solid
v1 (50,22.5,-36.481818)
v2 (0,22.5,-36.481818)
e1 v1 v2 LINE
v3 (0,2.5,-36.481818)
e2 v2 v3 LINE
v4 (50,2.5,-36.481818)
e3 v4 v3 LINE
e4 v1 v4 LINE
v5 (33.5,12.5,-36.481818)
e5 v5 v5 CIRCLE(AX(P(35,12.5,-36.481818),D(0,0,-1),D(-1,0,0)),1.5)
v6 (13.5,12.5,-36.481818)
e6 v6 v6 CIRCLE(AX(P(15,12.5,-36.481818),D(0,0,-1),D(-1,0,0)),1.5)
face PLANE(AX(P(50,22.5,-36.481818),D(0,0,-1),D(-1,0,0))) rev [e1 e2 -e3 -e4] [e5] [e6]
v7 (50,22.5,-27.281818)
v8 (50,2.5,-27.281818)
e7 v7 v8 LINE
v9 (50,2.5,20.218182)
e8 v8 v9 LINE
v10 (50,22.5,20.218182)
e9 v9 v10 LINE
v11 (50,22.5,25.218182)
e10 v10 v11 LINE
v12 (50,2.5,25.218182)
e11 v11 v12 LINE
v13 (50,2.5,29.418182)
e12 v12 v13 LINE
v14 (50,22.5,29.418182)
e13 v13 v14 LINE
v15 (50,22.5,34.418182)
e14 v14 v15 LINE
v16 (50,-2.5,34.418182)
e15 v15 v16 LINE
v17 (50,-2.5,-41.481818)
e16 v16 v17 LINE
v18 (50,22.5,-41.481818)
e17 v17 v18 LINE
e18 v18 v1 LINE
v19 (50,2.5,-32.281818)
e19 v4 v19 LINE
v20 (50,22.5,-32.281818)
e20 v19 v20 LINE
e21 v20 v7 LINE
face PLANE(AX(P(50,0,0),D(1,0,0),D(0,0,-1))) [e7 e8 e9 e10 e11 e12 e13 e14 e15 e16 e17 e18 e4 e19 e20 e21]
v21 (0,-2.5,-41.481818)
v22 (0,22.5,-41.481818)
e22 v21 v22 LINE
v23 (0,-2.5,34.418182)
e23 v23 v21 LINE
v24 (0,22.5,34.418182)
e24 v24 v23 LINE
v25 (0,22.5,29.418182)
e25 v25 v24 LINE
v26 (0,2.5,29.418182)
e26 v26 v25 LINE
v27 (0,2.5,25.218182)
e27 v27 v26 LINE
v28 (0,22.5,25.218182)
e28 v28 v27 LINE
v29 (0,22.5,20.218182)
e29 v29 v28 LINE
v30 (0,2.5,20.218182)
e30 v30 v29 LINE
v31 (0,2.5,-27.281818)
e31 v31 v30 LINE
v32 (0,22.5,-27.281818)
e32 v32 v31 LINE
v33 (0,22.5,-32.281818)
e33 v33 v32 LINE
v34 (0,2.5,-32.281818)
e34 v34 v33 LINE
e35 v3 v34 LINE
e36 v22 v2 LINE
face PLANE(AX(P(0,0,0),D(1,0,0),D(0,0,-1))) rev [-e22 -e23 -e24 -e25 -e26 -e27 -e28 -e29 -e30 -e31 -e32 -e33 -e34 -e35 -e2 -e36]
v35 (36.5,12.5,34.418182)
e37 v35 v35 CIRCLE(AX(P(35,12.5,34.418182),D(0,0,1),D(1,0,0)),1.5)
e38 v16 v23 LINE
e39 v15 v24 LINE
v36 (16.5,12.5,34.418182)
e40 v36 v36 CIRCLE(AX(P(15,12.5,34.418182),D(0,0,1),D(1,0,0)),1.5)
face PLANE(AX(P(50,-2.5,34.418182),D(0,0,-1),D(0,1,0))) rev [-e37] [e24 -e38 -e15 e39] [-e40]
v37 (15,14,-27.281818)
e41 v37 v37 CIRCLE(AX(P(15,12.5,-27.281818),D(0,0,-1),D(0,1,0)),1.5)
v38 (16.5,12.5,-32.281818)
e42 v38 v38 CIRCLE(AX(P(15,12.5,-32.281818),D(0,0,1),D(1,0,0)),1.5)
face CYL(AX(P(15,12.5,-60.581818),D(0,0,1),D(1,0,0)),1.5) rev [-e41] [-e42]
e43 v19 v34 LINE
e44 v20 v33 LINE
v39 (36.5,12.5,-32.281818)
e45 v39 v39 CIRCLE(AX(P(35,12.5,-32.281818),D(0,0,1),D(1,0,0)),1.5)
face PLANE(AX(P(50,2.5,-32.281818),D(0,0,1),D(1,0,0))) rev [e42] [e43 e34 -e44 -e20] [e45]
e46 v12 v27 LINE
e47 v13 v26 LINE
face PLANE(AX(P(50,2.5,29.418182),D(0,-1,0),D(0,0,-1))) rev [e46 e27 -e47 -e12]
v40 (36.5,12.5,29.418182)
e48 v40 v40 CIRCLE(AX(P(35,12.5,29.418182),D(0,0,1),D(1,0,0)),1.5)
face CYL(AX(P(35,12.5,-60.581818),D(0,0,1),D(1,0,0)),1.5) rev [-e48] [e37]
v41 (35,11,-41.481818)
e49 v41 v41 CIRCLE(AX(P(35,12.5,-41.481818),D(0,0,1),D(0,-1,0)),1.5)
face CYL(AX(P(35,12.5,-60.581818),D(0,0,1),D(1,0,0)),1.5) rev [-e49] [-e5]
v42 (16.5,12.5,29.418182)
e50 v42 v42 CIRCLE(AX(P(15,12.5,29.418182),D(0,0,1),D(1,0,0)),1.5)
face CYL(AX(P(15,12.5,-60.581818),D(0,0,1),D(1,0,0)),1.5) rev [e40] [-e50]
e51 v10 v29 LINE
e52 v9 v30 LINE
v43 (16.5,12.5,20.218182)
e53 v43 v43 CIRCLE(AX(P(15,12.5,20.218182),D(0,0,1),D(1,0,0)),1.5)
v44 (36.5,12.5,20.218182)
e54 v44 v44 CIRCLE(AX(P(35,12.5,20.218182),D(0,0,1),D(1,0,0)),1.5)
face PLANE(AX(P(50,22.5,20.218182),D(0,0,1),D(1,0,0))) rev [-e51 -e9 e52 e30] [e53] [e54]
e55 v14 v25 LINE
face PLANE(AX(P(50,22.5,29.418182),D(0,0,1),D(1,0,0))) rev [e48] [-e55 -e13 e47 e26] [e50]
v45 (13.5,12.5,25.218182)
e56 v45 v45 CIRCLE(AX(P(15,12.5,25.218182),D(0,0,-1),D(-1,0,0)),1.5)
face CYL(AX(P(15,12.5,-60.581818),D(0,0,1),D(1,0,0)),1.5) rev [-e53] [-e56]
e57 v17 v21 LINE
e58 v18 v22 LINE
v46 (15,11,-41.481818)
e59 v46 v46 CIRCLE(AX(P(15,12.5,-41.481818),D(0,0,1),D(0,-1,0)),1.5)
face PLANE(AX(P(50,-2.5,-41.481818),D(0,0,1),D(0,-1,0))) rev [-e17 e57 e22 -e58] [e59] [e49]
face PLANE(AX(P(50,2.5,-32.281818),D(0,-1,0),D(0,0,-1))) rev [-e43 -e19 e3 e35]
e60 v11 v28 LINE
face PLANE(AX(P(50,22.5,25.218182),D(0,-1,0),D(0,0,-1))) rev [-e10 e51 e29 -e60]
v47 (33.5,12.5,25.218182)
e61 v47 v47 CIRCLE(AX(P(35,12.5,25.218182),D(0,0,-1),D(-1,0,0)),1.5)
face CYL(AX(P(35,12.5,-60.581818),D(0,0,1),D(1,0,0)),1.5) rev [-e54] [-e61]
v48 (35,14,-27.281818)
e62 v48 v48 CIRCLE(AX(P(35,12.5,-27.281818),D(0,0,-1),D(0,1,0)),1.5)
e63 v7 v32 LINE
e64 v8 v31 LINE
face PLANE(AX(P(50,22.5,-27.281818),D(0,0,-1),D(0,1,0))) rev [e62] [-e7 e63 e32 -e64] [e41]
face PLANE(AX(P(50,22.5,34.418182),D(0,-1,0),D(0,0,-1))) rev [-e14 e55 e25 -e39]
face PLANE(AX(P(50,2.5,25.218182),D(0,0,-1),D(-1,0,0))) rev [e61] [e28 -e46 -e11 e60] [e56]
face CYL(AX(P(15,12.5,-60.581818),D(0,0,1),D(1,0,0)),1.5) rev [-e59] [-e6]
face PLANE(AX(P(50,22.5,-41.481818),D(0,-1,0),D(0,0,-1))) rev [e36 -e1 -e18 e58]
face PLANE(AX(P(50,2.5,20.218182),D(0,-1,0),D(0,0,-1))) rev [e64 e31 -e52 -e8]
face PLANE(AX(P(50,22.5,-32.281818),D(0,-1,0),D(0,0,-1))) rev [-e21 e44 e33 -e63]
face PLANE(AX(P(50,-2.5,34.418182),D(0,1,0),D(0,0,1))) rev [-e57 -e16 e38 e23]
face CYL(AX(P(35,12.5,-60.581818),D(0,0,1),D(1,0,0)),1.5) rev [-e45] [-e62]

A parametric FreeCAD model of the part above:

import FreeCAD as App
import Part
import Sketcher
from FreeCAD import Vector
Q = App.Units.Quantity

doc = App.newDocument("Part")
body = doc.addObject("PartDesign::Body", "Body")

# Sketch on YZ plane
sketch1 = body.newObject("Sketcher::SketchObject", "Sketch")
sketch1.AttachmentSupport = (doc.getObject("YZ_Plane"), [""])
sketch1.MapMode = "FlatFace"
sketch1.addGeometry(Part.LineSegment(Vector(22.5, 34.418182, 0), Vector(-2.5, 34.418182, 0)), False)
sketch1.addGeometry(Part.LineSegment(Vector(-2.5, 34.418182, 0), Vector(-2.5, -41.481818, 0)), False)
sketch1.addGeometry(Part.LineSegment(Vector(-2.5, -41.481818, 0), Vector(22.5, -41.481818, 0)), False)
sketch1.addGeometry(Part.LineSegment(Vector(22.5, -41.481818, 0), Vector(22.5, -36.481818, 0)), False)
sketch1.addGeometry(Part.LineSegment(Vector(22.5, -36.481818, 0), Vector(2.5, -36.481818, 0)), False)
sketch1.addGeometry(Part.LineSegment(Vector(2.5, -36.481818, 0), Vector(2.5, -32.281818, 0)), False)
sketch1.addGeometry(Part.LineSegment(Vector(2.5, -32.281818, 0), Vector(22.5, -32.281818, 0)), False)
sketch1.addGeometry(Part.LineSegment(Vector(22.5, -32.281818, 0), Vector(22.5, -27.281818, 0)), False)
sketch1.addGeometry(Part.LineSegment(Vector(22.5, -27.281818, 0), Vector(2.5, -27.281818, 0)), False)
sketch1.addGeometry(Part.LineSegment(Vector(2.5, -27.281818, 0), Vector(2.5, 20.218182, 0)), False)
sketch1.addGeometry(Part.LineSegment(Vector(2.5, 20.218182, 0), Vector(22.5, 20.218182, 0)), False)
sketch1.addGeometry(Part.LineSegment(Vector(22.5, 20.218182, 0), Vector(22.5, 25.218182, 0)), False)
sketch1.addGeometry(Part.LineSegment(Vector(22.5, 25.218182, 0), Vector(2.5, 25.218182, 0)), False)
sketch1.addGeometry(Part.LineSegment(Vector(2.5, 25.218182, 0), Vector(2.5, 29.418182, 0)), False)
sketch1.addGeometry(Part.LineSegment(Vector(2.5, 29.418182, 0), Vector(22.5, 29.418182, 0)), False)
sketch1.addGeometry(Part.LineSegment(Vector(22.5, 29.418182, 0), Vector(22.5, 34.418182, 0)), False)
sketch1.addConstraint(Sketcher.Constraint("Coincident", 0, 2, 1, 1))
sketch1.addConstraint(Sketcher.Constraint("Coincident", 1, 2, 2, 1))
sketch1.addConstraint(Sketcher.Constraint("Coincident", 2, 2, 3, 1))
sketch1.addConstraint(Sketcher.Constraint("Coincident", 3, 2, 4, 1))
sketch1.addConstraint(Sketcher.Constraint("Coincident", 4, 2, 5, 1))
sketch1.addConstraint(Sketcher.Constraint("Coincident", 5, 2, 6, 1))
sketch1.addConstraint(Sketcher.Constraint("Coincident", 6, 2, 7, 1))
sketch1.addConstraint(Sketcher.Constraint("Coincident", 7, 2, 8, 1))
sketch1.addConstraint(Sketcher.Constraint("Coincident", 8, 2, 9, 1))
sketch1.addConstraint(Sketcher.Constraint("Coincident", 9, 2, 10, 1))
sketch1.addConstraint(Sketcher.Constraint("Coincident", 10, 2, 11, 1))
sketch1.addConstraint(Sketcher.Constraint("Coincident", 11, 2, 12, 1))
sketch1.addConstraint(Sketcher.Constraint("Coincident", 12, 2, 13, 1))
sketch1.addConstraint(Sketcher.Constraint("Coincident", 13, 2, 14, 1))
sketch1.addConstraint(Sketcher.Constraint("Coincident", 14, 2, 15, 1))
sketch1.addConstraint(Sketcher.Constraint("Coincident", 15, 2, 0, 1))
sketch1.addConstraint(Sketcher.Constraint("Horizontal", 0))
sketch1.addConstraint(Sketcher.Constraint("Vertical", 1))
sketch1.addConstraint(Sketcher.Constraint("Horizontal", 2))
sketch1.addConstraint(Sketcher.Constraint("Vertical", 3))
sketch1.addConstraint(Sketcher.Constraint("Horizontal", 4))
sketch1.addConstraint(Sketcher.Constraint("Vertical", 5))
sketch1.addConstraint(Sketcher.Constraint("Horizontal", 6))
sketch1.addConstraint(Sketcher.Constraint("Vertical", 7))
sketch1.addConstraint(Sketcher.Constraint("Horizontal", 8))
sketch1.addConstraint(Sketcher.Constraint("Vertical", 9))
sketch1.addConstraint(Sketcher.Constraint("Horizontal", 10))
sketch1.addConstraint(Sketcher.Constraint("Vertical", 11))
sketch1.addConstraint(Sketcher.Constraint("Horizontal", 12))
sketch1.addConstraint(Sketcher.Constraint("Vertical", 13))
sketch1.addConstraint(Sketcher.Constraint("Horizontal", 14))
sketch1.addConstraint(Sketcher.Constraint("Vertical", 15))
sketch1.addConstraint(Sketcher.Constraint("Vertical", 3, 2, 6, 2))
sketch1.addConstraint(Sketcher.Constraint("Vertical", 5, 2, 8, 2))
sketch1.addConstraint(Sketcher.Constraint("Vertical", 7, 2, 10, 2))
sketch1.addConstraint(Sketcher.Constraint("Vertical", 9, 2, 12, 2))
sketch1.addConstraint(Sketcher.Constraint("Vertical", 11, 2, 14, 2))
sketch1.addConstraint(Sketcher.Constraint("Equal", 3, 7))
sketch1.addConstraint(Sketcher.Constraint("Equal", 7, 11))
sketch1.addConstraint(Sketcher.Constraint("Equal", 5, 13))
sketch1.addConstraint(Sketcher.Constraint("Equal", 11, 15))
sketch1.addConstraint(Sketcher.Constraint("DistanceX", 0, 2, 0, 1, Q("25 mm")))
sketch1.addConstraint(Sketcher.Constraint("DistanceX", 4, 2, 4, 1, Q("20 mm")))
sketch1.addConstraint(Sketcher.Constraint("DistanceY", 3, 1, 3, 2, Q("5 mm")))
sketch1.addConstraint(Sketcher.Constraint("DistanceY", 1, 2, 1, 1, Q("75.9 mm")))
sketch1.addConstraint(Sketcher.Constraint("DistanceY", 5, 1, 5, 2, Q("4.2 mm")))
sketch1.addConstraint(Sketcher.Constraint("DistanceX", 0, 2, -1, 1, Q("2.5 mm")))
sketch1.addConstraint(Sketcher.Constraint("DistanceY", -1, 1, 0, 2, Q("34.418182 mm")))
pad1 = body.newObject("PartDesign::Pad", "Pad")
pad1.Profile = sketch1
pad1.Length = 50

# Sketch on XY plane
sketch2 = body.newObject("Sketcher::SketchObject", "Sketch001")
sketch2.AttachmentSupport = (doc.getObject("XY_Plane"), [""])
sketch2.MapMode = "FlatFace"
sketch2.AttachmentOffset = App.Placement(Vector(0, 0, 34.418182), App.Rotation())
sketch2.addGeometry(Part.Circle(Vector(15, 12.5, 0), Vector(0, 0, 1), 1.5), False)
sketch2.addGeometry(Part.Circle(Vector(35, 12.5, 0), Vector(0, 0, 1), 1.5), False)
sketch2.addConstraint(Sketcher.Constraint("Equal", 0, 1))
sketch2.addConstraint(Sketcher.Constraint("Horizontal", 0, 3, 1, 3))
sketch2.addConstraint(Sketcher.Constraint("Diameter", 0, Q("3 mm")))
sketch2.addConstraint(Sketcher.Constraint("DistanceX", -1, 1, 0, 3, Q("15 mm")))
sketch2.addConstraint(Sketcher.Constraint("DistanceX", -1, 1, 1, 3, Q("35 mm")))
sketch2.addConstraint(Sketcher.Constraint("DistanceY", -1, 1, 0, 3, Q("12.5 mm")))
pocket1 = body.newObject("PartDesign::Pocket", "Pocket")
pocket1.Profile = sketch2
pocket1.Length = 95

doc.recompute()
